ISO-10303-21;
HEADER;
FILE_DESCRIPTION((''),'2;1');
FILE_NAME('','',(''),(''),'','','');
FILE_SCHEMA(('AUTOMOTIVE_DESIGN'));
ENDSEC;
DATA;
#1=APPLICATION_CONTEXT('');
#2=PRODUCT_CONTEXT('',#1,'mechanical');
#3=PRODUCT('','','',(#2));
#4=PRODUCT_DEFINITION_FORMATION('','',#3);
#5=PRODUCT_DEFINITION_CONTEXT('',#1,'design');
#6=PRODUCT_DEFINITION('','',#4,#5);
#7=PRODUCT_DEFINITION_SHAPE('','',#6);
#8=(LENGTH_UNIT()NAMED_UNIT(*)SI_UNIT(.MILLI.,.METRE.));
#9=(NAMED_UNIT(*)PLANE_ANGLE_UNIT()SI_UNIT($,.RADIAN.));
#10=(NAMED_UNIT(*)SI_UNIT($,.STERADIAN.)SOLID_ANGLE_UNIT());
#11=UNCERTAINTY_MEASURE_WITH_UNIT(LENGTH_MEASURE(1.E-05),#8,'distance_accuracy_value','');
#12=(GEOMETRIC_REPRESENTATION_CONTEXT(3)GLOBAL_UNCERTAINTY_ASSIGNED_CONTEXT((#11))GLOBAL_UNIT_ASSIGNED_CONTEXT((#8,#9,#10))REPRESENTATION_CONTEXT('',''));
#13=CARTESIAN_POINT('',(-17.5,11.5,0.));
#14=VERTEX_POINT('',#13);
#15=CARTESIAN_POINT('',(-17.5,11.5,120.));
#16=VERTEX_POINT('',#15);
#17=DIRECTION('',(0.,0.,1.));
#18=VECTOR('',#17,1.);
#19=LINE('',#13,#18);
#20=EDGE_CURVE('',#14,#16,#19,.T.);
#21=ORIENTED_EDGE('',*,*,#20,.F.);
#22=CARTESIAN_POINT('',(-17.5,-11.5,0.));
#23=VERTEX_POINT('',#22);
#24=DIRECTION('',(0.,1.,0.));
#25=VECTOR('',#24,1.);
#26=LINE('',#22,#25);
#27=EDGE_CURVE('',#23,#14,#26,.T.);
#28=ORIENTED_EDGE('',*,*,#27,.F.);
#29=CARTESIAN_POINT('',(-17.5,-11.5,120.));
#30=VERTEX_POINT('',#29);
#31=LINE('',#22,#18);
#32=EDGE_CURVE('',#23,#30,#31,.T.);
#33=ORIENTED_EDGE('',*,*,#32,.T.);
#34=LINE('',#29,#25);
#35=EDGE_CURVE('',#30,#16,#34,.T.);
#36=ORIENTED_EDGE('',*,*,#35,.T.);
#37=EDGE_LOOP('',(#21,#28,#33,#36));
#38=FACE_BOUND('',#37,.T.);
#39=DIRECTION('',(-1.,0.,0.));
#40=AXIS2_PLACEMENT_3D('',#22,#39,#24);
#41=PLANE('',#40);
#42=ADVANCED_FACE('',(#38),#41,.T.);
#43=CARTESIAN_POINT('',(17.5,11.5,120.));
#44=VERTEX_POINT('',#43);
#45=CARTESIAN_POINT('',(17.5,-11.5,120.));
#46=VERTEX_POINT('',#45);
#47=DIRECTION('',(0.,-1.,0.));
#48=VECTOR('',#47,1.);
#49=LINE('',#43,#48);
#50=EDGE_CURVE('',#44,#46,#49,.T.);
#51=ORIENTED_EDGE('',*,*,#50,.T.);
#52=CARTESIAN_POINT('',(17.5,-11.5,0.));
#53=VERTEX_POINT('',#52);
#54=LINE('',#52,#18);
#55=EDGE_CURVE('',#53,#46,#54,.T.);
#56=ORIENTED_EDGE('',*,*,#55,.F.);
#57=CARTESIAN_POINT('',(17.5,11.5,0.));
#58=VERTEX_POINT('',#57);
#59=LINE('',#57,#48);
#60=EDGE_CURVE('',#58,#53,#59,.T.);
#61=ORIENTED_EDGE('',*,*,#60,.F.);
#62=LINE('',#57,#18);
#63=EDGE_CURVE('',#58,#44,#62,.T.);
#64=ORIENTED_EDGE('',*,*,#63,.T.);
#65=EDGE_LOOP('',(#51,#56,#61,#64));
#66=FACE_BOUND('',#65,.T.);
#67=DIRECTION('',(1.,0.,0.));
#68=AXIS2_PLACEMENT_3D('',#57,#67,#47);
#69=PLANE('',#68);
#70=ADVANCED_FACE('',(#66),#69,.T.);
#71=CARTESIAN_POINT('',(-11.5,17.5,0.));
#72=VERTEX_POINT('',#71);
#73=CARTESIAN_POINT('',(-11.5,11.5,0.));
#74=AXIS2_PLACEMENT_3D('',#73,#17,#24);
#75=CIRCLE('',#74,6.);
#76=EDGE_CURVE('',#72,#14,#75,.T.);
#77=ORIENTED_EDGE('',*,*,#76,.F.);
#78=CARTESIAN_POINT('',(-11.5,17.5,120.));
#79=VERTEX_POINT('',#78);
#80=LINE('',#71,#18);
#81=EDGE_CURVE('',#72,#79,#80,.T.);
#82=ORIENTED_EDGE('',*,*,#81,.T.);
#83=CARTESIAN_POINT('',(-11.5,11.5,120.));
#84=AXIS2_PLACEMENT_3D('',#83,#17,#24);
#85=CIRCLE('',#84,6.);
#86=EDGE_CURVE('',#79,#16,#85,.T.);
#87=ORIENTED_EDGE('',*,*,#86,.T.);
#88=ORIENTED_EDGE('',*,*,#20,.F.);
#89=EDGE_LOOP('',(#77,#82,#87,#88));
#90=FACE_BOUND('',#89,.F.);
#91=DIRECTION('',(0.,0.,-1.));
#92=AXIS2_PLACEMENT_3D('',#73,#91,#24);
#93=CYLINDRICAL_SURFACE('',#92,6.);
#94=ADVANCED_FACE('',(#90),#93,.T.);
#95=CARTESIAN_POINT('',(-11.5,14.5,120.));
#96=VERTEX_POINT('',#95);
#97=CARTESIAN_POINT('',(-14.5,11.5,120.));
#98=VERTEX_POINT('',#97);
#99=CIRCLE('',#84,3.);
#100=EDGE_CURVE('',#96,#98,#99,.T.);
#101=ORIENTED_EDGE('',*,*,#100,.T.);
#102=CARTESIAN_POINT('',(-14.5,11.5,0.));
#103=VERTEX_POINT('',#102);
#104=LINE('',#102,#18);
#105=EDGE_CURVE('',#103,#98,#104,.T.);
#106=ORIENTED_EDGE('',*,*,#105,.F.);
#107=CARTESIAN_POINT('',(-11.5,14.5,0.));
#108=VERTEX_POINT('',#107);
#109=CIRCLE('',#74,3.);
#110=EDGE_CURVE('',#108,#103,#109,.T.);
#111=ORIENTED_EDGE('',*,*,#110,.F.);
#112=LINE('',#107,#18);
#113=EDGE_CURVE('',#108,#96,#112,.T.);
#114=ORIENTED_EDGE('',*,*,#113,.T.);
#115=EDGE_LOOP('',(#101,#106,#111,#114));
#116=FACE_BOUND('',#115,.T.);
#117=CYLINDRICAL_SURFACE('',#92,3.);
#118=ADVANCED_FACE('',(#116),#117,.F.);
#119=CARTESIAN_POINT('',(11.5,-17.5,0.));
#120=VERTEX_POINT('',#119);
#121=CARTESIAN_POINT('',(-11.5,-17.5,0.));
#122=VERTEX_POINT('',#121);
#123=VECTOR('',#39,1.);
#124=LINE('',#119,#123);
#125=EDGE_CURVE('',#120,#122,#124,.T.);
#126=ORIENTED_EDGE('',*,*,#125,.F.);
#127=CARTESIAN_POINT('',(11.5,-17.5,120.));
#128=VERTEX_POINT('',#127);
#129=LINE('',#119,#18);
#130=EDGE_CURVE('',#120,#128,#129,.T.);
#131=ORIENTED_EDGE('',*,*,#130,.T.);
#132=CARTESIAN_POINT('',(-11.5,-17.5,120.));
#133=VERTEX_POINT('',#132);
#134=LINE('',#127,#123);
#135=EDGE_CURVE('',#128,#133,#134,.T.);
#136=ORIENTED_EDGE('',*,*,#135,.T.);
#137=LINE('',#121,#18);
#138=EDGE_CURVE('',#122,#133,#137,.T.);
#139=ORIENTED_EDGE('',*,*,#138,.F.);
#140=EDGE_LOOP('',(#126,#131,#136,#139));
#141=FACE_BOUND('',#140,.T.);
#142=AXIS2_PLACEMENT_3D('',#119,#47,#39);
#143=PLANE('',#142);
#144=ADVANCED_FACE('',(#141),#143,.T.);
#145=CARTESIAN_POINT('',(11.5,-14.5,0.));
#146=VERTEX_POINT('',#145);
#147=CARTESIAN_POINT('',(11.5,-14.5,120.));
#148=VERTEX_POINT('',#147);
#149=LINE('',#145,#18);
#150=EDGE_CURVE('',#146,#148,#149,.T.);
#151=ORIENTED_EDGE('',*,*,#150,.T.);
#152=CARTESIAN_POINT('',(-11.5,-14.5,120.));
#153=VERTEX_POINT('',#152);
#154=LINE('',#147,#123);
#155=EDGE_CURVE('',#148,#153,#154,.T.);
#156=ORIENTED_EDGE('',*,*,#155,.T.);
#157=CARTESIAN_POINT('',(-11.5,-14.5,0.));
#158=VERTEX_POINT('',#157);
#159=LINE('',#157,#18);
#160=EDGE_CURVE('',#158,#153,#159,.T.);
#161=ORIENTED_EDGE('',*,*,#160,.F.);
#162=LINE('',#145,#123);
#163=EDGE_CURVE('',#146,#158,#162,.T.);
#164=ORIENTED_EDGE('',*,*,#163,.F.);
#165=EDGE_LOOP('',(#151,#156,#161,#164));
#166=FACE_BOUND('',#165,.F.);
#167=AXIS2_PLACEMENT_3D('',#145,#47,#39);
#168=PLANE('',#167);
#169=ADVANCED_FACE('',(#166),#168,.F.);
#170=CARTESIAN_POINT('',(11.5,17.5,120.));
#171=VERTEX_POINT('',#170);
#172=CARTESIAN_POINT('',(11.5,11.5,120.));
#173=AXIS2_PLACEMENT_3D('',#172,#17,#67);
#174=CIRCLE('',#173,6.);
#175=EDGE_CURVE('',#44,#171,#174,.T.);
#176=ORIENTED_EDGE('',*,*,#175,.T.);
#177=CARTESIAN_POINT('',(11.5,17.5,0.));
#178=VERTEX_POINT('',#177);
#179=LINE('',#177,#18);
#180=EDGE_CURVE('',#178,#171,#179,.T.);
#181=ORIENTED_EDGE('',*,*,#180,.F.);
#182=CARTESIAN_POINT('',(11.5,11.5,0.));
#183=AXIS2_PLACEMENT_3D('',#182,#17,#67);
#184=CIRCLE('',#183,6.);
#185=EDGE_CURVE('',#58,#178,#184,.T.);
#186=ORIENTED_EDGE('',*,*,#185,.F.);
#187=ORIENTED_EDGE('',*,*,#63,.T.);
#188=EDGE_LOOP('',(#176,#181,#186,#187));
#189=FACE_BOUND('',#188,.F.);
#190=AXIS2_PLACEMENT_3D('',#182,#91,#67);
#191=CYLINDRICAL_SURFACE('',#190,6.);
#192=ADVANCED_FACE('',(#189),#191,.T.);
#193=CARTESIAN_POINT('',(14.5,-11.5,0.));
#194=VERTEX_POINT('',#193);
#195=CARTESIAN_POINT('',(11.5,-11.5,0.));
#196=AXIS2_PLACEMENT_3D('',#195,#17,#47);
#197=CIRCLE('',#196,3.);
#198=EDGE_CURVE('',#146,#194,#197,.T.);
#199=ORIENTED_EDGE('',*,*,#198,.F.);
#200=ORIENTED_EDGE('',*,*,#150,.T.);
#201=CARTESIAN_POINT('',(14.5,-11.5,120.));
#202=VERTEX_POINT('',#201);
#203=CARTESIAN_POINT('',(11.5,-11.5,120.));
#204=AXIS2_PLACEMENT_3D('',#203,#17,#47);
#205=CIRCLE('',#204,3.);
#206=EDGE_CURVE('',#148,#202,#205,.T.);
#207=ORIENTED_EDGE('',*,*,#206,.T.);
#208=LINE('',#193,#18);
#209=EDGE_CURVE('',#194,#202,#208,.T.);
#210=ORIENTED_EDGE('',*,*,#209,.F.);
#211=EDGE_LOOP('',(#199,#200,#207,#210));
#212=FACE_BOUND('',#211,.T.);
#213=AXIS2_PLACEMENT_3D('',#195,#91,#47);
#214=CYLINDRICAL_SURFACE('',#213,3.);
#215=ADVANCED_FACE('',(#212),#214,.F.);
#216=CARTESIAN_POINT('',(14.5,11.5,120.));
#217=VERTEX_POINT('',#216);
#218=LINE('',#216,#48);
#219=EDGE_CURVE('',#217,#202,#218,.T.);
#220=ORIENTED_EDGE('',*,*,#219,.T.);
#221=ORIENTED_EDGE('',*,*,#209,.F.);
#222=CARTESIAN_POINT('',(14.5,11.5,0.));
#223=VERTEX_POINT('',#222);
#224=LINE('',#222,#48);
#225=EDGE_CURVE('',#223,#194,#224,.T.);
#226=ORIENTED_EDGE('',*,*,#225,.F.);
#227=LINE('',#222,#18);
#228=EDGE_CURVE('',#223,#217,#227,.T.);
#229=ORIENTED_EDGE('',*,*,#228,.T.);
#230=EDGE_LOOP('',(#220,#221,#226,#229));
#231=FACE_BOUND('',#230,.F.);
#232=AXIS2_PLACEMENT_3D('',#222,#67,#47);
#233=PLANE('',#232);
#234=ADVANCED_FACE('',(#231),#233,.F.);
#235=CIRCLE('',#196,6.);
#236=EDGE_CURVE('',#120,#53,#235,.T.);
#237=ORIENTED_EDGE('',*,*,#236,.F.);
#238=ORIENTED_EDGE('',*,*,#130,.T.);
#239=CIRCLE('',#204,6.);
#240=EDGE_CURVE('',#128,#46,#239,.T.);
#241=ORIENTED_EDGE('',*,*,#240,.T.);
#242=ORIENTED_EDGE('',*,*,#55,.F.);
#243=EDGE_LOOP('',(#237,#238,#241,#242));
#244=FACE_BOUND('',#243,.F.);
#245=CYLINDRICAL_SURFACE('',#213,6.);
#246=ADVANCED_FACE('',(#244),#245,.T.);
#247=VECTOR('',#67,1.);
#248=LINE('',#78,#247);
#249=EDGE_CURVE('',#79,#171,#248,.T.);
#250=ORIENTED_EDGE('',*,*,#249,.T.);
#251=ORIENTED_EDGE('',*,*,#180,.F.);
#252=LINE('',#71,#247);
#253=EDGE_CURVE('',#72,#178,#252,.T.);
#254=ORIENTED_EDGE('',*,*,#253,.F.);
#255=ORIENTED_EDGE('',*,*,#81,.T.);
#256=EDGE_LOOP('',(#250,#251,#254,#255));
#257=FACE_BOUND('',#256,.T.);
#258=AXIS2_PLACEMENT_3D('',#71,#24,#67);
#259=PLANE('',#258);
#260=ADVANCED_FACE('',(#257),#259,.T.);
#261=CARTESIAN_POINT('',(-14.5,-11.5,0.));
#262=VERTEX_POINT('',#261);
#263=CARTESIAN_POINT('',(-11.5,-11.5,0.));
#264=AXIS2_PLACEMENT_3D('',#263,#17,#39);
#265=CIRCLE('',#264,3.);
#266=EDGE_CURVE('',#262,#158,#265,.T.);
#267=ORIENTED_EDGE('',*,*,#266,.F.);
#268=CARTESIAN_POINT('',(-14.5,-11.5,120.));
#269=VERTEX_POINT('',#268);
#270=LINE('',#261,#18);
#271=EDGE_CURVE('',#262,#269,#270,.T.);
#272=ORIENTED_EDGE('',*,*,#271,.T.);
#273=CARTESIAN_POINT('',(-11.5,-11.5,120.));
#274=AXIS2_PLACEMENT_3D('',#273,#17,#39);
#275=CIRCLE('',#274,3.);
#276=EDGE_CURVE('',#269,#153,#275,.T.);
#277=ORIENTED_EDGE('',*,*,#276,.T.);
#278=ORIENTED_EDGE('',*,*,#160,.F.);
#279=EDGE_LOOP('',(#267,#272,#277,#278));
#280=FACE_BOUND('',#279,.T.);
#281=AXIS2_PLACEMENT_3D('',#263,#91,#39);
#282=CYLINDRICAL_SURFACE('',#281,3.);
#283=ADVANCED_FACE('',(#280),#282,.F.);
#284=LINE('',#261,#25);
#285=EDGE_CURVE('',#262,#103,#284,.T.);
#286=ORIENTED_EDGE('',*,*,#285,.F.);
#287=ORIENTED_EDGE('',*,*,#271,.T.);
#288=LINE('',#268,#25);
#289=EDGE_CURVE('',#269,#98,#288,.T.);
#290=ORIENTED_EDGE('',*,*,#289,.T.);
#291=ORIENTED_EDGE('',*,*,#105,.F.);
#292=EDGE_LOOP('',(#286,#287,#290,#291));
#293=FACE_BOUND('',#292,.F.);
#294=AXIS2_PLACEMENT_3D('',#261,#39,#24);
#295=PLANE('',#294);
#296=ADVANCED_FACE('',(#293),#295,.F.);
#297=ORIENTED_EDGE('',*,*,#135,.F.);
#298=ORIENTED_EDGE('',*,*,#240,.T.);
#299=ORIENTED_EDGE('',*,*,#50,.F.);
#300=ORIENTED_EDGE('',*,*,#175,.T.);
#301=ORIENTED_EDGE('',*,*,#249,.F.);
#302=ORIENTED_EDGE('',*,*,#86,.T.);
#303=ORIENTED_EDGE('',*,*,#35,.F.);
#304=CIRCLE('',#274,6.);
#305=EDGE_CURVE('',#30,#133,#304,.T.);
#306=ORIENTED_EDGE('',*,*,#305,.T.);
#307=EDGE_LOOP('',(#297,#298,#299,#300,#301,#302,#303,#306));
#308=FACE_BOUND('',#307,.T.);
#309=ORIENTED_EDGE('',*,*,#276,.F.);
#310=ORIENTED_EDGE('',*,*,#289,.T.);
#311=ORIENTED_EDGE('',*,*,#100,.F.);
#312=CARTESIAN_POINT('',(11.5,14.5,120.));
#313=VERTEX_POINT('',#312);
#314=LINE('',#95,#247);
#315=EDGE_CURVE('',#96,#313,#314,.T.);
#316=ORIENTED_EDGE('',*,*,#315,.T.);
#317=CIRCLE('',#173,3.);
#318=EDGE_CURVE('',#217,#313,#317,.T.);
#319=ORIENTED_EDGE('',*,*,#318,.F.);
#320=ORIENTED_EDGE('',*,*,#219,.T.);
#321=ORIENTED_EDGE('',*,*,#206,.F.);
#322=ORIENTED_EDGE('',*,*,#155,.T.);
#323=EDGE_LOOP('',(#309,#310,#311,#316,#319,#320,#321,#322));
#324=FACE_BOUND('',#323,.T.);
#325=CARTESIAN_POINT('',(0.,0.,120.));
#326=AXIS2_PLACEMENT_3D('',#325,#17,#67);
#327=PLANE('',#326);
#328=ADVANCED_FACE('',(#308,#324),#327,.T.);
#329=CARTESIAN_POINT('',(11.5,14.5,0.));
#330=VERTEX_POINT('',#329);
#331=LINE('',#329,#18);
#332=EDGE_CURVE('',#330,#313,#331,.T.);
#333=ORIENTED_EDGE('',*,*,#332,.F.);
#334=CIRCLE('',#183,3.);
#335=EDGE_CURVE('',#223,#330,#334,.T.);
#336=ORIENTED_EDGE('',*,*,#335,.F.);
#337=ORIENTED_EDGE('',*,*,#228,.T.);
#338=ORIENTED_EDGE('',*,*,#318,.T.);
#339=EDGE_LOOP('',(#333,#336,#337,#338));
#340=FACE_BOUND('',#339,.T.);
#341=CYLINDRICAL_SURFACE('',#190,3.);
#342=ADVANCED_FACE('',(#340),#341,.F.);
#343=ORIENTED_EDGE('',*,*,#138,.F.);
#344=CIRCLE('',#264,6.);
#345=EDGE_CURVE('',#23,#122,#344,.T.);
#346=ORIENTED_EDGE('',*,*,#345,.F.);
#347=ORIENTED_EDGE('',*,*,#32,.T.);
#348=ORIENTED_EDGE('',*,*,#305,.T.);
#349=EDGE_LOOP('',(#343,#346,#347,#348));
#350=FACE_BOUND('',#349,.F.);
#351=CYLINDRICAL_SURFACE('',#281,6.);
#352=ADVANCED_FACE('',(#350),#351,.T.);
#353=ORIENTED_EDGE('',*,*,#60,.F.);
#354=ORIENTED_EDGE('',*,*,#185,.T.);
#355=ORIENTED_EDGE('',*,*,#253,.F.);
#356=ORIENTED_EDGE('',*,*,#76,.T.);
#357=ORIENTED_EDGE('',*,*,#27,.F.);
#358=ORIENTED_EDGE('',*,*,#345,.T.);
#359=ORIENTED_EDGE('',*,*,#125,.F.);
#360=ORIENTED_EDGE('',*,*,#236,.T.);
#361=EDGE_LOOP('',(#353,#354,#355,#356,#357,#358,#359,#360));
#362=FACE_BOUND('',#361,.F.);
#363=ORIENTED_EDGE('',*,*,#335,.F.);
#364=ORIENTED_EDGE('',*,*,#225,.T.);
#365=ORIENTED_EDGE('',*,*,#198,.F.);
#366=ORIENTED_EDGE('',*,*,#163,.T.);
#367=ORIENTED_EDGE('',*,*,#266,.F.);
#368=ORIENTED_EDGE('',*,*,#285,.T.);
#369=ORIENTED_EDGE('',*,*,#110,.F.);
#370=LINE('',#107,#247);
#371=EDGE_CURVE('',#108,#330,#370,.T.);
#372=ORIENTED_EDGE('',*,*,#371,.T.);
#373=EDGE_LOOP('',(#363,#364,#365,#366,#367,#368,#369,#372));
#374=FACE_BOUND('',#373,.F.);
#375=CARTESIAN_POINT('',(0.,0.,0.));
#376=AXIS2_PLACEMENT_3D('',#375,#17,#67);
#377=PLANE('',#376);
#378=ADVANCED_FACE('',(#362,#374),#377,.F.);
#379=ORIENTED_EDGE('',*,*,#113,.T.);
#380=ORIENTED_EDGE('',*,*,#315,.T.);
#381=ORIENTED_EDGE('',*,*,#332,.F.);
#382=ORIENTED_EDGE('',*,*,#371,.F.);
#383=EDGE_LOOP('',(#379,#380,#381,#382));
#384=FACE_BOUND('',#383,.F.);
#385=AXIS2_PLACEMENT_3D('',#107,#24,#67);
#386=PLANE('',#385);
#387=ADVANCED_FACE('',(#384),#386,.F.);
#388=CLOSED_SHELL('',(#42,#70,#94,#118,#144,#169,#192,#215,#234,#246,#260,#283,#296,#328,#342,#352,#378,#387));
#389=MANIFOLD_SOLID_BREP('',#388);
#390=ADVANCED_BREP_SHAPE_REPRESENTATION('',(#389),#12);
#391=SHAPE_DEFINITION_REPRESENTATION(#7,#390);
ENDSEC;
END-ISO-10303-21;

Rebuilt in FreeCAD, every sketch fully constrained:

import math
import FreeCAD as App
import Part
import Sketcher

V = App.Vector
Q = App.Units.Quantity

doc = App.newDocument("Part")
body = doc.addObject("PartDesign::Body", "Body")

# Sketch on XY plane
sketch1 = doc.addObject("Sketcher::SketchObject", "Sketch")
body.addObject(sketch1)
sketch1.AttachmentSupport = (doc.XY_Plane, [""])
sketch1.MapMode = "FlatFace"
sketch1.addGeometry(Part.LineSegment(V(-17.5, 11.5, 0), V(-17.5, -11.5, 0)), False)
sketch1.addGeometry(Part.ArcOfCircle(Part.Circle(V(-11.5, -11.5, 0), V(0, 0, 1), 6), math.radians(180), math.radians(270)), False)
sketch1.addGeometry(Part.LineSegment(V(-11.5, -17.5, 0), V(11.5, -17.5, 0)), False)
sketch1.addGeometry(Part.ArcOfCircle(Part.Circle(V(11.5, -11.5, 0), V(0, 0, 1), 6), math.radians(-90), math.radians(0)), False)
sketch1.addGeometry(Part.LineSegment(V(17.5, -11.5, 0), V(17.5, 11.5, 0)), False)
sketch1.addGeometry(Part.ArcOfCircle(Part.Circle(V(11.5, 11.5, 0), V(0, 0, 1), 6), math.radians(0), math.radians(90)), False)
sketch1.addGeometry(Part.LineSegment(V(11.5, 17.5, 0), V(-11.5, 17.5, 0)), False)
sketch1.addGeometry(Part.ArcOfCircle(Part.Circle(V(-11.5, 11.5, 0), V(0, 0, 1), 6), math.radians(90), math.radians(180)), False)
sketch1.addGeometry(Part.ArcOfCircle(Part.Circle(V(-11.5, 11.5, 0), V(0, 0, 1), 3), math.radians(90), math.radians(180)), False)
sketch1.addGeometry(Part.LineSegment(V(-11.5, 14.5, 0), V(11.5, 14.5, 0)), False)
sketch1.addGeometry(Part.ArcOfCircle(Part.Circle(V(11.5, 11.5, 0), V(0, 0, 1), 3), math.radians(0), math.radians(90)), False)
sketch1.addGeometry(Part.LineSegment(V(14.5, 11.5, 0), V(14.5, -11.5, 0)), False)
sketch1.addGeometry(Part.ArcOfCircle(Part.Circle(V(11.5, -11.5, 0), V(0, 0, 1), 3), math.radians(-90), math.radians(0)), False)
sketch1.addGeometry(Part.LineSegment(V(11.5, -14.5, 0), V(-11.5, -14.5, 0)), False)
sketch1.addGeometry(Part.ArcOfCircle(Part.Circle(V(-11.5, -11.5, 0), V(0, 0, 1), 3), math.radians(180), math.radians(270)), False)
sketch1.addGeometry(Part.LineSegment(V(-14.5, -11.5, 0), V(-14.5, 11.5, 0)), False)
sketch1.addConstraint(Sketcher.Constraint("Tangent", 0, 2, 1, 1))
sketch1.addConstraint(Sketcher.Constraint("Tangent", 1, 2, 2, 1))
sketch1.addConstraint(Sketcher.Constraint("Tangent", 2, 2, 3, 1))
sketch1.addConstraint(Sketcher.Constraint("Tangent", 3, 2, 4, 1))
sketch1.addConstraint(Sketcher.Constraint("Tangent", 4, 2, 5, 1))
sketch1.addConstraint(Sketcher.Constraint("Tangent", 5, 2, 6, 1))
sketch1.addConstraint(Sketcher.Constraint("Tangent", 6, 2, 7, 1))
sketch1.addConstraint(Sketcher.Constraint("Tangent", 7, 2, 0, 1))
sketch1.addConstraint(Sketcher.Constraint("Tangent", 8, 1, 9, 1))
sketch1.addConstraint(Sketcher.Constraint("Tangent", 9, 2, 10, 2))
sketch1.addConstraint(Sketcher.Constraint("Tangent", 10, 1, 11, 1))
sketch1.addConstraint(Sketcher.Constraint("Tangent", 11, 2, 12, 2))
sketch1.addConstraint(Sketcher.Constraint("Tangent", 12, 1, 13, 1))
sketch1.addConstraint(Sketcher.Constraint("Tangent", 13, 2, 14, 2))
sketch1.addConstraint(Sketcher.Constraint("Tangent", 14, 1, 15, 1))
sketch1.addConstraint(Sketcher.Constraint("Tangent", 15, 2, 8, 2))
sketch1.addConstraint(Sketcher.Constraint("Vertical", 0))
sketch1.addConstraint(Sketcher.Constraint("Horizontal", 2))
sketch1.addConstraint(Sketcher.Constraint("Vertical", 4))
sketch1.addConstraint(Sketcher.Constraint("Horizontal", 6))
sketch1.addConstraint(Sketcher.Constraint("Horizontal", 9))
sketch1.addConstraint(Sketcher.Constraint("Vertical", 11))
sketch1.addConstraint(Sketcher.Constraint("Horizontal", 13))
sketch1.addConstraint(Sketcher.Constraint("Vertical", 15))
sketch1.addConstraint(Sketcher.Constraint("Coincident", 8, 3, 7, 3))
sketch1.addConstraint(Sketcher.Constraint("Coincident", 10, 3, 5, 3))
sketch1.addConstraint(Sketcher.Constraint("Coincident", 12, 3, 3, 3))
sketch1.addConstraint(Sketcher.Constraint("Equal", 1, 3))
sketch1.addConstraint(Sketcher.Constraint("Equal", 3, 5))
sketch1.addConstraint(Sketcher.Constraint("Equal", 5, 7))
sketch1.addConstraint(Sketcher.Constraint("Equal", 12, 14))
sketch1.addConstraint(Sketcher.Constraint("Symmetric", 1, 3, 5, 3, -1, 1))
sketch1.addConstraint(Sketcher.Constraint("Equal", 13, 0))
sketch1.addConstraint(Sketcher.Constraint("Radius", 1, Q("6 mm")))
sketch1.addConstraint(Sketcher.Constraint("Radius", 8, Q("3 mm")))
sketch1.addConstraint(Sketcher.Constraint("DistanceX", 0, 2, -1, 1, Q("17.5 mm")))
pad1 = doc.addObject("PartDesign::Pad", "Pad")
body.addObject(pad1)
pad1.Profile = sketch1
pad1.Length = 120

doc.recompute()
